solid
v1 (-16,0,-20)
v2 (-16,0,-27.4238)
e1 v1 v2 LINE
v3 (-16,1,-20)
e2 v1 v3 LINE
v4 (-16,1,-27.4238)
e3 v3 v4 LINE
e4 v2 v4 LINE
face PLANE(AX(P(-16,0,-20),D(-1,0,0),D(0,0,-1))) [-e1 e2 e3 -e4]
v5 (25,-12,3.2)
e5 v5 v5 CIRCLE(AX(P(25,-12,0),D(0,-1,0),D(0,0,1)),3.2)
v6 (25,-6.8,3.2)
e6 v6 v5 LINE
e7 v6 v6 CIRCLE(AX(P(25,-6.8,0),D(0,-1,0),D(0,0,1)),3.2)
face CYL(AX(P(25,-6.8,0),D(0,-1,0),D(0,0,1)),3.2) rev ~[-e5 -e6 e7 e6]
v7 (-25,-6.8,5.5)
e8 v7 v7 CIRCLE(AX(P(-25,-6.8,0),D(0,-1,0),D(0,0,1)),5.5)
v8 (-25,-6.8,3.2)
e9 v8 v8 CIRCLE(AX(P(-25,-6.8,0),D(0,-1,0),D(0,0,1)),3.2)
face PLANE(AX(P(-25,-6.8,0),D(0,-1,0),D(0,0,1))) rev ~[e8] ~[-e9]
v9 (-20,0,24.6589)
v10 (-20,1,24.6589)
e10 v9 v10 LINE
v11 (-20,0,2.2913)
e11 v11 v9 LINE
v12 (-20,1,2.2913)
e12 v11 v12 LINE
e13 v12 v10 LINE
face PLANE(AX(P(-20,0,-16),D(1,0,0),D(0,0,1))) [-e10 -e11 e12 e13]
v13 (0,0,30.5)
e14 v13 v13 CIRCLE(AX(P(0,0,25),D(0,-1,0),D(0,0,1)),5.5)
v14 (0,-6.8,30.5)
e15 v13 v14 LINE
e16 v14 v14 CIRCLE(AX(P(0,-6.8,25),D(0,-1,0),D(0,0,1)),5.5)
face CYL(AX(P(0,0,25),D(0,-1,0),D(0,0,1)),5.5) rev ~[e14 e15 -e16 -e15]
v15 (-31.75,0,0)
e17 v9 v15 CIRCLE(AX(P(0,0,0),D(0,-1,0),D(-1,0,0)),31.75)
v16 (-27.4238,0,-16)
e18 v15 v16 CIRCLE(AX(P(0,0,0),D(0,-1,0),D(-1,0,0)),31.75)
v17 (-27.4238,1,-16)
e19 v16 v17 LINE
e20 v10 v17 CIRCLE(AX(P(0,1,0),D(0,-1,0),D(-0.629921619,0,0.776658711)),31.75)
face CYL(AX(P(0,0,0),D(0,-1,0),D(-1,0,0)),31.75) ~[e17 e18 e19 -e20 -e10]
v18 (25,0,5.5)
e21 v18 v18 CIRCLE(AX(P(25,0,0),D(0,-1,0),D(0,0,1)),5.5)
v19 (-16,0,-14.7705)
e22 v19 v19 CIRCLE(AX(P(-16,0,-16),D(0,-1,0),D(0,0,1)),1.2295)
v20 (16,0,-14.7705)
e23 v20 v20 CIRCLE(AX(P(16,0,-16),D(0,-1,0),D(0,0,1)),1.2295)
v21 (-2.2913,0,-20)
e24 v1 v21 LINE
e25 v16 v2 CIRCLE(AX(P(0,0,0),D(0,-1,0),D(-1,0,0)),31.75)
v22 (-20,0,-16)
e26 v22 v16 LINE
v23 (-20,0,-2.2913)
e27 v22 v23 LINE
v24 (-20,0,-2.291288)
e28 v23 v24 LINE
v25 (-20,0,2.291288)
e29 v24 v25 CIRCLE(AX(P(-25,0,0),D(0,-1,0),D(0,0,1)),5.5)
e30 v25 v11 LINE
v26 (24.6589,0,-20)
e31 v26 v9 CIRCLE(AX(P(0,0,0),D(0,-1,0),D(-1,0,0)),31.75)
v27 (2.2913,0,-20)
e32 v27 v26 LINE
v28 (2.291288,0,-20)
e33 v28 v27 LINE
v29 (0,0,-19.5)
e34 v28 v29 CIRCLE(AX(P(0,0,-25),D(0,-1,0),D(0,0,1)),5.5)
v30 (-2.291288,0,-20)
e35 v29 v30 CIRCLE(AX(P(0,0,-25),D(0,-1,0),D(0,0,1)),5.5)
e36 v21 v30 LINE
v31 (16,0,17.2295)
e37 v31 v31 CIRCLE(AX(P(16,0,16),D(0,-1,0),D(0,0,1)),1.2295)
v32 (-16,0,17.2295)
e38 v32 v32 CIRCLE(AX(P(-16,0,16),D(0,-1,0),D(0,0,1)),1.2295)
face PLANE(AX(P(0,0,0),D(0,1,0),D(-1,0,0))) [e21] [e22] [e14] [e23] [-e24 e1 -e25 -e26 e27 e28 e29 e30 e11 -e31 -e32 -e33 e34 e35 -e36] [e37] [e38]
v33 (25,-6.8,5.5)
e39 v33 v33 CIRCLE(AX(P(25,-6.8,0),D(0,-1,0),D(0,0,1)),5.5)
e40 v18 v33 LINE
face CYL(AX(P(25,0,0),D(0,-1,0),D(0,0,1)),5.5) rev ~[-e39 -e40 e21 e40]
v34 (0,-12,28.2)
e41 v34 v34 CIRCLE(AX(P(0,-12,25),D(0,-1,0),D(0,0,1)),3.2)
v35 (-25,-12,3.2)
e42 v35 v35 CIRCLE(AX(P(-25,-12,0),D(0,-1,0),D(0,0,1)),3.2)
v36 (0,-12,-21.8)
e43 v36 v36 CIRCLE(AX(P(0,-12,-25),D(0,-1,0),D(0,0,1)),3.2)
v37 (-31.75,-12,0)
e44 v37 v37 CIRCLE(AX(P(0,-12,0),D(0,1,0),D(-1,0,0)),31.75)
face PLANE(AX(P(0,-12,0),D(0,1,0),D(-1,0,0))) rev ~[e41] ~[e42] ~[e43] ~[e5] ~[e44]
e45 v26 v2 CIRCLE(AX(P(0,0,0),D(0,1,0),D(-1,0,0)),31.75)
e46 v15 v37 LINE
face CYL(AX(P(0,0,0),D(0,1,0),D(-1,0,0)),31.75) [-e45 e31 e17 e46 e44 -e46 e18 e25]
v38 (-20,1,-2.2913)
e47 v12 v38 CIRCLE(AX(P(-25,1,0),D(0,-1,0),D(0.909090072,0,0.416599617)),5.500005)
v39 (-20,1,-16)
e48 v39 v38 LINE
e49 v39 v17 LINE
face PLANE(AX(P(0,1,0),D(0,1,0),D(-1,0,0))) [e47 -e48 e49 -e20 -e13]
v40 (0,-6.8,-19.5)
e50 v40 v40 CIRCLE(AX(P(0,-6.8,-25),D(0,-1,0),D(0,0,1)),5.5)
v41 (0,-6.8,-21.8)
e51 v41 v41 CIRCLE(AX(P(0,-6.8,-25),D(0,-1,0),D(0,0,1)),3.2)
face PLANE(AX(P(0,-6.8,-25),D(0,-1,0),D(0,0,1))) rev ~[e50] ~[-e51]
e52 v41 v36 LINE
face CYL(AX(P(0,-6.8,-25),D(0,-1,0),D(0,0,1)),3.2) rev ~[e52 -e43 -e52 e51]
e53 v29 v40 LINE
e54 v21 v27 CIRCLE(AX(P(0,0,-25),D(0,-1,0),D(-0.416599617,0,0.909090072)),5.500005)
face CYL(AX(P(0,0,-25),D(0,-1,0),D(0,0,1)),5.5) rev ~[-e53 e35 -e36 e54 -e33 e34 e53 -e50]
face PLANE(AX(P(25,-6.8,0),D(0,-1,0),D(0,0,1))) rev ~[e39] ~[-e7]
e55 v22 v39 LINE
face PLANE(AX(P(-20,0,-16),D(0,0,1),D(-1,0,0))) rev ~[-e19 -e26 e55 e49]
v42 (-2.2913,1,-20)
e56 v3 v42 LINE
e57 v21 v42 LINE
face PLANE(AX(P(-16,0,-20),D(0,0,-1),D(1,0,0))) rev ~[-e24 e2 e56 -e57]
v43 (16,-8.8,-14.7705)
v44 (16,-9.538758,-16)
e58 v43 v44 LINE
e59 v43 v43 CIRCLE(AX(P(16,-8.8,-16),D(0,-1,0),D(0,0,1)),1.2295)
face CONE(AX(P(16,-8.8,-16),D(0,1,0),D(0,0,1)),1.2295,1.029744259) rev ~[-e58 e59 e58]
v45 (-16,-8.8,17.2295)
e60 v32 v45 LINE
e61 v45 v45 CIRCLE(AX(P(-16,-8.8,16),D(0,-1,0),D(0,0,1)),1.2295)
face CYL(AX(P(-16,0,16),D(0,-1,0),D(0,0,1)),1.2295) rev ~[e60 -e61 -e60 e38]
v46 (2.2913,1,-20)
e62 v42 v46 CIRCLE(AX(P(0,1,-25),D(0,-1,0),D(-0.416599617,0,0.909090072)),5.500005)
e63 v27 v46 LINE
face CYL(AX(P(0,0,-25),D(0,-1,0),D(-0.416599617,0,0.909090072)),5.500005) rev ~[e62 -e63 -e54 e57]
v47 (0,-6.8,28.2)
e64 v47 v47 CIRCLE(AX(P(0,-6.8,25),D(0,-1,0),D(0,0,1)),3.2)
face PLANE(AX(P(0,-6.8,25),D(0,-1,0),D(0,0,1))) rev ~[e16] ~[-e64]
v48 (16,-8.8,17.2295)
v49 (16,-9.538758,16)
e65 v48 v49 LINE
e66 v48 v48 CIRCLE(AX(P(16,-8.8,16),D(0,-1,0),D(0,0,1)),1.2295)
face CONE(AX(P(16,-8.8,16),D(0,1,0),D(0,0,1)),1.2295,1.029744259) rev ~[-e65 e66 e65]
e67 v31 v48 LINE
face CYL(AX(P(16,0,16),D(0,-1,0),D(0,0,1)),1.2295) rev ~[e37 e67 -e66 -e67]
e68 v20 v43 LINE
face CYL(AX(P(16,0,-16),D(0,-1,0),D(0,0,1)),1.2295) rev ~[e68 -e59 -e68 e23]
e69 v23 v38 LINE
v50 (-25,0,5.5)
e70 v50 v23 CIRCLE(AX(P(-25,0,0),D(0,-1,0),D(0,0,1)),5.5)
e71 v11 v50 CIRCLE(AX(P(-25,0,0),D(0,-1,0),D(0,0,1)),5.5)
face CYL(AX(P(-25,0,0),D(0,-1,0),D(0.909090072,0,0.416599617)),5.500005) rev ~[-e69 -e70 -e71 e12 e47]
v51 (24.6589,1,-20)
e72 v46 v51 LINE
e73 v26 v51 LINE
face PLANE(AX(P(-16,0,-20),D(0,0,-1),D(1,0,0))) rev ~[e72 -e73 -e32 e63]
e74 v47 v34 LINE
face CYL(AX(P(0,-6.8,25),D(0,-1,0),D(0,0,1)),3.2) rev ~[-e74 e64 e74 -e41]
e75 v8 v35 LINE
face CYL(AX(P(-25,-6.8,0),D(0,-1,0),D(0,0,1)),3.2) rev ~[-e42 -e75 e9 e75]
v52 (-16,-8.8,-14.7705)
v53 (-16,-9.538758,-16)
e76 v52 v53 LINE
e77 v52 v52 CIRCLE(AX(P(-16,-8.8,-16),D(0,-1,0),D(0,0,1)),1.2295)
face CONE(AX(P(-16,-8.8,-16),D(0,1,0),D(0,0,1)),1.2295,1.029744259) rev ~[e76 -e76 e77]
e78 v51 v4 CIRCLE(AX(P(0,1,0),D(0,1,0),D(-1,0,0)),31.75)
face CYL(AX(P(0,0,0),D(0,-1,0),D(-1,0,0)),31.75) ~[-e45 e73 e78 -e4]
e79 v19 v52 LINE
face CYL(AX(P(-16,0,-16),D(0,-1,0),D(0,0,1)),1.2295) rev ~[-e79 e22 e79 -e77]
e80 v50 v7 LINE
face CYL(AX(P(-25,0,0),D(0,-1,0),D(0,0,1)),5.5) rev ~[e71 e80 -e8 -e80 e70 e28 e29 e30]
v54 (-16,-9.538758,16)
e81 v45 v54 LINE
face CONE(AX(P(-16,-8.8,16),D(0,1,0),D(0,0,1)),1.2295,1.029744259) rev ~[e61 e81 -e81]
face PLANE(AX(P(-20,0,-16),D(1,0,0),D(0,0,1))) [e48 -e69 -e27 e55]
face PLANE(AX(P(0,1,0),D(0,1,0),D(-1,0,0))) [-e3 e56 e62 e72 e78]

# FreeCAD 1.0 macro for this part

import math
import FreeCAD as App
import Part
import Sketcher
from FreeCAD import Vector
Q = App.Units.Quantity

doc = App.newDocument("Part")
body = doc.addObject("PartDesign::Body", "Body")

sketch1 = body.newObject("Sketcher::SketchObject", "Sketch")
sketch1.AttachmentSupport = (doc.getObject("XZ_Plane"), [""])
sketch1.MapMode = "FlatFace"
sketch1.addGeometry(Part.Circle(Vector(0, 0, 0), Vector(0, 0, 1), 32), False)
sketch1.addConstraint([
    Sketcher.Constraint("Coincident", 0, 3, -1, 1),
    Sketcher.Constraint("Diameter", 0, Q("63.5 mm")),
])
pad1 = body.newObject("PartDesign::Pad", "Pad")
pad1.Profile = sketch1
pad1.Length = 12

sketch2 = body.newObject("Sketcher::SketchObject", "Sketch001")
sketch2.AttachmentSupport = (doc.getObject("XZ_Plane"), [""])
sketch2.MapMode = "FlatFace"
sketch2.addGeometry([
    Part.ArcOfCircle(Part.Circle(Vector(0, 0, 0), Vector(0, 0, 1), 32), math.radians(129), math.radians(210)),
    Part.LineSegment(Vector(-20, 25, 0), Vector(-20, -16, 0)),
    Part.LineSegment(Vector(-20, -16, 0), Vector(-27, -16, 0)),
    Part.LineSegment(Vector(-16, -20, 0), Vector(25, -20, 0)),
    Part.ArcOfCircle(Part.Circle(Vector(0, 0, 0), Vector(0, 0, 1), 32), math.radians(-120), math.radians(-39)),
    Part.LineSegment(Vector(-16, -27, 0), Vector(-16, -20, 0)),
], False)
sketch2.addConstraint([
    Sketcher.Constraint("Coincident", 0, 1, 1, 1),
    Sketcher.Constraint("Coincident", 1, 2, 2, 1),
    Sketcher.Constraint("Coincident", 2, 2, 0, 2),
    Sketcher.Constraint("Coincident", 3, 2, 4, 2),
    Sketcher.Constraint("Coincident", 4, 1, 5, 1),
    Sketcher.Constraint("Coincident", 5, 2, 3, 1),
    Sketcher.Constraint("Vertical", 1),
    Sketcher.Constraint("Horizontal", 2),
    Sketcher.Constraint("Horizontal", 3),
    Sketcher.Constraint("Vertical", 5),
    Sketcher.Constraint("Coincident", 0, 3, -1, 1),
    Sketcher.Constraint("Coincident", 4, 3, -1, 1),
    Sketcher.Constraint("Equal", 0, 4),
    Sketcher.Constraint("Equal", 3, 1),
    Sketcher.Constraint("Equal", 2, 5),
    Sketcher.Constraint("Radius", 0, Q("31.75 mm")),
    Sketcher.Constraint("DistanceX", 0, 1, -1, 1, Q("20 mm")),
    Sketcher.Constraint("DistanceY", 1, 2, -1, 1, Q("16 mm")),
])
pad2 = body.newObject("PartDesign::Pad", "Pad001")
pad2.Profile = sketch2
pad2.Length = 1
pad2.Reversed = True

sketch3 = body.newObject("Sketcher::SketchObject", "Sketch002")
sketch3.AttachmentSupport = (doc.getObject("XZ_Plane"), [""])
sketch3.MapMode = "FlatFace"
sketch3.addGeometry([
    Part.Circle(Vector(-16, -16, 0), Vector(0, 0, 1), 1.2),
    Part.Circle(Vector(16, -16, 0), Vector(0, 0, 1), 1.2),
    Part.Circle(Vector(16, 16, 0), Vector(0, 0, 1), 1.2),
    Part.Circle(Vector(-16, 16, 0), Vector(0, 0, 1), 1.2),
], False)
sketch3.addConstraint([
    Sketcher.Constraint("Equal", 0, 1),
    Sketcher.Constraint("Equal", 1, 2),
    Sketcher.Constraint("Equal", 2, 3),
    Sketcher.Constraint("Symmetric", 0, 3, 2, 3, -1, 1),
    Sketcher.Constraint("Symmetric", 1, 3, 3, 3, -1, 1),
    Sketcher.Constraint("Symmetric", 0, 3, 1, 3, -2),
    Sketcher.Constraint("Diameter", 0, Q("2.459 mm")),
    Sketcher.Constraint("DistanceX", 0, 3, -1, 1, Q("16 mm")),
    Sketcher.Constraint("DistanceY", 0, 3, -1, 1, Q("16 mm")),
])
doc.recompute()
hole = body.newObject("PartDesign::Hole", "Hole")
hole.Profile = sketch3
hole.ThreadType = "None"
hole.Diameter = 2.459
hole.DepthType = "Dimension"
hole.Depth = 8.8
hole.DrillPoint = "Angled"
hole.DrillPointAngle = 118
hole.Reversed = True

sketch4 = body.newObject("Sketcher::SketchObject", "Sketch003")
sketch4.AttachmentSupport = (doc.getObject("XZ_Plane"), [""])
sketch4.MapMode = "FlatFace"
sketch4.addGeometry([
    Part.Circle(Vector(0, 25, 0), Vector(0, 0, 1), 3.2),
    Part.Circle(Vector(-25, 0, 0), Vector(0, 0, 1), 3.2),
    Part.Circle(Vector(0, -25, 0), Vector(0, 0, 1), 3.2),
    Part.Circle(Vector(25, 0, 0), Vector(0, 0, 1), 3.2),
], False)
sketch4.addConstraint([
    Sketcher.Constraint("Equal", 0, 1),
    Sketcher.Constraint("Equal", 1, 2),
    Sketcher.Constraint("Equal", 2, 3),
    Sketcher.Constraint("Symmetric", 0, 3, 2, 3, -1, 1),
    Sketcher.Constraint("Symmetric", 1, 3, 3, 3, -1, 1),
    Sketcher.Constraint("PointOnObject", 0, 3, -2),
    Sketcher.Constraint("PointOnObject", 1, 3, -1),
    Sketcher.Constraint("Diameter", 0, Q("6.4 mm")),
    Sketcher.Constraint("DistanceY", -1, 1, 0, 3, Q("25 mm")),
    Sketcher.Constraint("DistanceX", 1, 3, -1, 1, Q("25 mm")),
])
doc.recompute()
hole2 = body.newObject("PartDesign::Hole", "Hole001")
hole2.Profile = sketch4
hole2.ThreadType = "None"
hole2.Diameter = 6.4
hole2.DepthType = "ThroughAll"
hole2.HoleCutType = "Counterbore"
hole2.HoleCutDiameter = 11
hole2.HoleCutDepth = 6.8
hole2.Reversed = True

sketch5 = body.newObject("Sketcher::SketchObject", "Sketch004")
sketch5.AttachmentSupport = (doc.getObject("XZ_Plane"), [""])
sketch5.MapMode = "FlatFace"
sketch5.addGeometry([
    Part.ArcOfCircle(Part.Circle(Vector(0, -25, 0), Vector(0, 0, 1), 5.5), math.radians(115), math.radians(425)),
    Part.LineSegment(Vector(2.3, -20, 0), Vector(-2.3, -20, 0)),
    Part.LineSegment(Vector(-20, -2.3, 0), Vector(-20, 2.3, 0)),
    Part.ArcOfCircle(Part.Circle(Vector(-25, 0, 0), Vector(0, 0, 1), 5.5), math.radians(25), math.radians(335)),
], False)
sketch5.addConstraint([
    Sketcher.Constraint("Coincident", 0, 1, 1, 2),
    Sketcher.Constraint("Coincident", 1, 1, 0, 2),
    Sketcher.Constraint("Coincident", 2, 1, 3, 2),
    Sketcher.Constraint("Coincident", 3, 1, 2, 2),
    Sketcher.Constraint("Horizontal", 1),
    Sketcher.Constraint("Vertical", 2),
    Sketcher.Constraint("Equal", 0, 3),
    Sketcher.Constraint("PointOnObject", 0, 3, -2),
    Sketcher.Constraint("PointOnObject", 3, 3, -1),
    Sketcher.Constraint("Equal", 1, 2),
    Sketcher.Constraint("Radius", 0, Q("5.5 mm")),
    Sketcher.Constraint("DistanceY", 0, 3, -1, 1, Q("25 mm")),
    Sketcher.Constraint("DistanceX", 3, 3, -1, 1, Q("25 mm")),
    Sketcher.Constraint("DistanceY", 0, 1, -1, 1, Q("20 mm")),
])
pocket1 = body.newObject("PartDesign::Pocket", "Pocket")
pocket1.Profile = sketch5
pocket1.Type = "ThroughAll"

doc.recompute()
